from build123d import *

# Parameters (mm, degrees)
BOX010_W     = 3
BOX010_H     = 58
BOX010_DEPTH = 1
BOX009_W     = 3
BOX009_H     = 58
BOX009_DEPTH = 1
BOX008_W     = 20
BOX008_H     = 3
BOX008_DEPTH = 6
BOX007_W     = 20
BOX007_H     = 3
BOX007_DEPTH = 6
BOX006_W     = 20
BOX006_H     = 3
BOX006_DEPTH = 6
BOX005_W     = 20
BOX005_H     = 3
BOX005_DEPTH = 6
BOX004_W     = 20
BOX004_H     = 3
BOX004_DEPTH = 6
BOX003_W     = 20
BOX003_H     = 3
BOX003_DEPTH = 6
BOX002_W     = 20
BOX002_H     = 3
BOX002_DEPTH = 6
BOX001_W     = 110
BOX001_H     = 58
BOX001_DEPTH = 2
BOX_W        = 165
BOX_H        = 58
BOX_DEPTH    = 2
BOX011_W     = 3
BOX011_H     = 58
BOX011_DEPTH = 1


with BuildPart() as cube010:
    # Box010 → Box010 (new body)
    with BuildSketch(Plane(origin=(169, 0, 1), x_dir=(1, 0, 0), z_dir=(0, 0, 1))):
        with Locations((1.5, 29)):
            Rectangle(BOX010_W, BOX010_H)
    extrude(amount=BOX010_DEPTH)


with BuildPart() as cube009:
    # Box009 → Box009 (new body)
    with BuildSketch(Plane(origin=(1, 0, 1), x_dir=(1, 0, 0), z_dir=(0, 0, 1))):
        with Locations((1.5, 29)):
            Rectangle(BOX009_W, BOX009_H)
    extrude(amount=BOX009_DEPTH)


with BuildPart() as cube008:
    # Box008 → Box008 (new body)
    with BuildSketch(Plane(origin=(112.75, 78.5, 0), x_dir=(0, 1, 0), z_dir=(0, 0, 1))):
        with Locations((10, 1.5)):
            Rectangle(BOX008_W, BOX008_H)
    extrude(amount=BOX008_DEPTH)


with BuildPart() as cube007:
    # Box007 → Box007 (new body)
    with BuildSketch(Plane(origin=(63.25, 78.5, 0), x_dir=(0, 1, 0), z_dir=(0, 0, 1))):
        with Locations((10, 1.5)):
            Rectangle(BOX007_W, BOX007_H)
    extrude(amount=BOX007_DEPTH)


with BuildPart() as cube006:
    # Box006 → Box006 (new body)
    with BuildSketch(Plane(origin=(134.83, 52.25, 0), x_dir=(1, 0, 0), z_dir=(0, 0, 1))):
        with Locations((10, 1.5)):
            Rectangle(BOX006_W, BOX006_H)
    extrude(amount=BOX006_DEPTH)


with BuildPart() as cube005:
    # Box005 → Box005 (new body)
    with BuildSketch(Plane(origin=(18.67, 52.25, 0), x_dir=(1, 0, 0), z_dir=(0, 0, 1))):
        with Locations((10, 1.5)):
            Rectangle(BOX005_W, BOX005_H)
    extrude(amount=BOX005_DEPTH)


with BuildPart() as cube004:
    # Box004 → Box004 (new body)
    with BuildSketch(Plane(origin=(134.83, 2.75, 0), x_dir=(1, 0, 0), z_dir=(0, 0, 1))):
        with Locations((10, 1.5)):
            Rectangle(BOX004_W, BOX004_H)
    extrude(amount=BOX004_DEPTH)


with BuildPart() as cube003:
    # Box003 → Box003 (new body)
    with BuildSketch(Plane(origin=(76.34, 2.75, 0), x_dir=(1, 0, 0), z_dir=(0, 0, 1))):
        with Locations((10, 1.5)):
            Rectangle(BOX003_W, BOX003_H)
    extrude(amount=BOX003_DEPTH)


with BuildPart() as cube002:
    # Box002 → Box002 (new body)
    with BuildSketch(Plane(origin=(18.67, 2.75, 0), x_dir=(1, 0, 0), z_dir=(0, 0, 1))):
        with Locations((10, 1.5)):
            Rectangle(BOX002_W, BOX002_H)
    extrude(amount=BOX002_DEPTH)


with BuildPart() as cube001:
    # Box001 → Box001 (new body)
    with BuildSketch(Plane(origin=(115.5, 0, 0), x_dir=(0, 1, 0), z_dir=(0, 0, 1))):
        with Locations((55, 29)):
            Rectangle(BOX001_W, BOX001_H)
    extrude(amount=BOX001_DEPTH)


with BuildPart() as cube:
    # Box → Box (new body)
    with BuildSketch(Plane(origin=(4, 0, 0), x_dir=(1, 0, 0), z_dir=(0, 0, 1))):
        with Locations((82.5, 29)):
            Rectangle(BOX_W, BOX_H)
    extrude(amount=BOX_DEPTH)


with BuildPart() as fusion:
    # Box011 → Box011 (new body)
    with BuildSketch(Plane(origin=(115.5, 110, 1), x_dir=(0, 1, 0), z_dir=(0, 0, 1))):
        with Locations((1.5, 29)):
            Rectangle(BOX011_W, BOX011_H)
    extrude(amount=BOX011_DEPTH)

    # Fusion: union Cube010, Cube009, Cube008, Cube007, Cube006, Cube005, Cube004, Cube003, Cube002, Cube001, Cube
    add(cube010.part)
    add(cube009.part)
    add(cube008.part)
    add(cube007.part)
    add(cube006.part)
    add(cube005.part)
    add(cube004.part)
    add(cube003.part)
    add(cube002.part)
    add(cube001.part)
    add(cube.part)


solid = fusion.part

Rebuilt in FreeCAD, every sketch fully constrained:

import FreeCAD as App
import Part
import Sketcher

V = App.Vector


def add_polygon(sketch, points):
    """Adds a closed chain of lines whose ends are joined by coincident constraints."""
    first, n = sketch.GeometryCount, len(points)
    for a, b in zip(points, points[1:] + points[:1]):
        sketch.addGeometry(Part.LineSegment(App.Vector(*a, 0), App.Vector(*b, 0)), False)
    for i in range(n):
        sketch.addConstraint(Sketcher.Constraint("Coincident", first + i, 2, first + (i + 1) % n, 1))

doc = App.newDocument("Part")
params = doc.addObject("Spreadsheet::Sheet", "Params")
for row, (alias, value) in enumerate([
    ("sketch1_width", "3 mm"),
    ("sketch1_height", "58 mm"),
    ("pad1_length", "1 mm"),
    ("sketch2_width", "3 mm"),
    ("sketch2_height", "58 mm"),
    ("pad2_length", "1 mm"),
    ("sketch3_width", "3 mm"),
    ("sketch3_height", "20 mm"),
    ("pad3_length", "6 mm"),
    ("sketch4_width", "3 mm"),
    ("sketch4_height", "20 mm"),
    ("pad4_length", "6 mm"),
    ("sketch5_width", "20 mm"),
    ("sketch5_height", "3 mm"),
    ("pad5_length", "6 mm"),
    ("sketch6_width", "20 mm"),
    ("sketch6_height", "3 mm"),
    ("pad6_length", "6 mm"),
    ("sketch7_width", "20 mm"),
    ("sketch7_height", "3 mm"),
    ("pad7_length", "6 mm"),
    ("sketch8_width", "20 mm"),
    ("sketch8_height", "3 mm"),
    ("pad8_length", "6 mm"),
    ("sketch9_width", "20 mm"),
    ("sketch9_height", "3 mm"),
    ("pad9_length", "6 mm"),
    ("sketch10_width", "58 mm"),
    ("sketch10_height", "110 mm"),
    ("pad10_length", "2 mm"),
    ("sketch11_width", "165 mm"),
    ("sketch11_height", "58 mm"),
    ("pad11_length", "2 mm"),
    ("sketch12_width", "58 mm"),
    ("sketch12_height", "3 mm"),
    ("pad12_length", "1 mm"),
], start=1):
    params.set(f"A{row}", alias)
    params.set(f"B{row}", "=" + value)
    params.setAlias(f"B{row}", alias)

body = doc.addObject("PartDesign::Body", "Body")

sketch1 = body.newObject("Sketcher::SketchObject", "Sketch")
sketch1.AttachmentSupport = (doc.getObject("XY_Plane"), [""])
sketch1.MapMode = "FlatFace"
sketch1.AttachmentOffset = App.Placement(V(0, 0, 1), App.Rotation())
add_polygon(sketch1, [(169, 58), (169, 0), (172, 0), (172, 58)])
sketch1.addConstraint(Sketcher.Constraint("Vertical", 0))
sketch1.addConstraint(Sketcher.Constraint("Horizontal", 1))
sketch1.addConstraint(Sketcher.Constraint("Vertical", 2))
sketch1.addConstraint(Sketcher.Constraint("Horizontal", 3))
sketch1.addConstraint(Sketcher.Constraint("PointOnObject", 0, 2, -1))
sketch1.addConstraint(Sketcher.Constraint("DistanceX", 1, 1, 1, 2, 3.0))
sketch1.addConstraint(Sketcher.Constraint("DistanceY", 0, 2, 0, 1, 58.0))
sketch1.addConstraint(Sketcher.Constraint("DistanceX", -1, 1, 0, 2, 169.0))
sketch1.setExpression("Constraints[9]", "Params.sketch1_width")
sketch1.setExpression("Constraints[10]", "Params.sketch1_height")
pad1 = body.newObject("PartDesign::Pad", "Pad")
pad1.Profile = sketch1
pad1.setExpression("Length", "Params.pad1_length")
body2 = doc.addObject("PartDesign::Body", "Body001")

sketch2 = body2.newObject("Sketcher::SketchObject", "Sketch001")
sketch2.AttachmentSupport = (doc.getObject("XY_Plane001"), [""])
sketch2.MapMode = "FlatFace"
sketch2.AttachmentOffset = App.Placement(V(0, 0, 1), App.Rotation())
add_polygon(sketch2, [(1, 58), (1, 0), (4, 0), (4, 58)])
sketch2.addConstraint(Sketcher.Constraint("Vertical", 0))
sketch2.addConstraint(Sketcher.Constraint("Horizontal", 1))
sketch2.addConstraint(Sketcher.Constraint("Vertical", 2))
sketch2.addConstraint(Sketcher.Constraint("Horizontal", 3))
sketch2.addConstraint(Sketcher.Constraint("PointOnObject", 0, 2, -1))
sketch2.addConstraint(Sketcher.Constraint("DistanceX", 1, 1, 1, 2, 3.0))
sketch2.addConstraint(Sketcher.Constraint("DistanceY", 0, 2, 0, 1, 58.0))
sketch2.addConstraint(Sketcher.Constraint("DistanceX", -1, 1, 0, 2, 1.0))
sketch2.setExpression("Constraints[9]", "Params.sketch2_width")
sketch2.setExpression("Constraints[10]", "Params.sketch2_height")
pad2 = body2.newObject("PartDesign::Pad", "Pad001")
pad2.Profile = sketch2
pad2.setExpression("Length", "Params.pad2_length")
body3 = doc.addObject("PartDesign::Body", "Body002")

sketch3 = body3.newObject("Sketcher::SketchObject", "Sketch002")
sketch3.AttachmentSupport = (doc.getObject("XY_Plane002"), [""])
sketch3.MapMode = "FlatFace"
add_polygon(sketch3, [(109.75, 78.5), (112.75, 78.5), (112.75, 98.5), (109.75, 98.5)])
sketch3.addConstraint(Sketcher.Constraint("Horizontal", 0))
sketch3.addConstraint(Sketcher.Constraint("Vertical", 1))
sketch3.addConstraint(Sketcher.Constraint("Horizontal", 2))
sketch3.addConstraint(Sketcher.Constraint("Vertical", 3))
sketch3.addConstraint(Sketcher.Constraint("DistanceX", 0, 1, 0, 2, 3.0))
sketch3.addConstraint(Sketcher.Constraint("DistanceY", 1, 1, 1, 2, 20.0))
sketch3.addConstraint(Sketcher.Constraint("DistanceY", -1, 1, 0, 2, 78.5))
sketch3.addConstraint(Sketcher.Constraint("DistanceX", -1, 1, 0, 2, 112.75))
sketch3.setExpression("Constraints[8]", "Params.sketch3_width")
sketch3.setExpression("Constraints[9]", "Params.sketch3_height")
pad3 = body3.newObject("PartDesign::Pad", "Pad002")
pad3.Profile = sketch3
pad3.setExpression("Length", "Params.pad3_length")
body4 = doc.addObject("PartDesign::Body", "Body003")

sketch4 = body4.newObject("Sketcher::SketchObject", "Sketch003")
sketch4.AttachmentSupport = (doc.getObject("XY_Plane003"), [""])
sketch4.MapMode = "FlatFace"
add_polygon(sketch4, [(60.25, 78.5), (63.25, 78.5), (63.25, 98.5), (60.25, 98.5)])
sketch4.addConstraint(Sketcher.Constraint("Horizontal", 0))
sketch4.addConstraint(Sketcher.Constraint("Vertical", 1))
sketch4.addConstraint(Sketcher.Constraint("Horizontal", 2))
sketch4.addConstraint(Sketcher.Constraint("Vertical", 3))
sketch4.addConstraint(Sketcher.Constraint("DistanceX", 0, 1, 0, 2, 3.0))
sketch4.addConstraint(Sketcher.Constraint("DistanceY", 1, 1, 1, 2, 20.0))
sketch4.addConstraint(Sketcher.Constraint("DistanceY", -1, 1, 0, 2, 78.5))
sketch4.addConstraint(Sketcher.Constraint("DistanceX", -1, 1, 0, 2, 63.25))
sketch4.setExpression("Constraints[8]", "Params.sketch4_width")
sketch4.setExpression("Constraints[9]", "Params.sketch4_height")
pad4 = body4.newObject("PartDesign::Pad", "Pad003")
pad4.Profile = sketch4
pad4.setExpression("Length", "Params.pad4_length")
body5 = doc.addObject("PartDesign::Body", "Body004")

sketch5 = body5.newObject("Sketcher::SketchObject", "Sketch004")
sketch5.AttachmentSupport = (doc.getObject("XY_Plane004"), [""])
sketch5.MapMode = "FlatFace"
add_polygon(sketch5, [(134.83, 55.25), (134.83, 52.25), (154.83, 52.25), (154.83, 55.25)])
sketch5.addConstraint(Sketcher.Constraint("Vertical", 0))
sketch5.addConstraint(Sketcher.Constraint("Horizontal", 1))
sketch5.addConstraint(Sketcher.Constraint("Vertical", 2))
sketch5.addConstraint(Sketcher.Constraint("Horizontal", 3))
sketch5.addConstraint(Sketcher.Constraint("DistanceX", 1, 1, 1, 2, 20.0))
sketch5.addConstraint(Sketcher.Constraint("DistanceY", 0, 2, 0, 1, 3.0))
sketch5.addConstraint(Sketcher.Constraint("DistanceX", -1, 1, 0, 2, 134.83))
sketch5.addConstraint(Sketcher.Constraint("DistanceY", -1, 1, 0, 2, 52.25))
sketch5.setExpression("Constraints[8]", "Params.sketch5_width")
sketch5.setExpression("Constraints[9]", "Params.sketch5_height")
pad5 = body5.newObject("PartDesign::Pad", "Pad004")
pad5.Profile = sketch5
pad5.setExpression("Length", "Params.pad5_length")
body6 = doc.addObject("PartDesign::Body", "Body005")

sketch6 = body6.newObject("Sketcher::SketchObject", "Sketch005")
sketch6.AttachmentSupport = (doc.getObject("XY_Plane005"), [""])
sketch6.MapMode = "FlatFace"
add_polygon(sketch6, [(18.67, 55.25), (18.67, 52.25), (38.67, 52.25), (38.67, 55.25)])
sketch6.addConstraint(Sketcher.Constraint("Vertical", 0))
sketch6.addConstraint(Sketcher.Constraint("Horizontal", 1))
sketch6.addConstraint(Sketcher.Constraint("Vertical", 2))
sketch6.addConstraint(Sketcher.Constraint("Horizontal", 3))
sketch6.addConstraint(Sketcher.Constraint("DistanceX", 1, 1, 1, 2, 20.0))
sketch6.addConstraint(Sketcher.Constraint("DistanceY", 0, 2, 0, 1, 3.0))
sketch6.addConstraint(Sketcher.Constraint("DistanceX", -1, 1, 0, 2, 18.67))
sketch6.addConstraint(Sketcher.Constraint("DistanceY", -1, 1, 0, 2, 52.25))
sketch6.setExpression("Constraints[8]", "Params.sketch6_width")
sketch6.setExpression("Constraints[9]", "Params.sketch6_height")
pad6 = body6.newObject("PartDesign::Pad", "Pad005")
pad6.Profile = sketch6
pad6.setExpression("Length", "Params.pad6_length")
body7 = doc.addObject("PartDesign::Body", "Body006")

sketch7 = body7.newObject("Sketcher::SketchObject", "Sketch006")
sketch7.AttachmentSupport = (doc.getObject("XY_Plane006"), [""])
sketch7.MapMode = "FlatFace"
add_polygon(sketch7, [(134.83, 5.75), (134.83, 2.75), (154.83, 2.75), (154.83, 5.75)])
sketch7.addConstraint(Sketcher.Constraint("Vertical", 0))
sketch7.addConstraint(Sketcher.Constraint("Horizontal", 1))
sketch7.addConstraint(Sketcher.Constraint("Vertical", 2))
sketch7.addConstraint(Sketcher.Constraint("Horizontal", 3))
sketch7.addConstraint(Sketcher.Constraint("DistanceX", 1, 1, 1, 2, 20.0))
sketch7.addConstraint(Sketcher.Constraint("DistanceY", 0, 2, 0, 1, 3.0))
sketch7.addConstraint(Sketcher.Constraint("DistanceX", -1, 1, 0, 2, 134.83))
sketch7.addConstraint(Sketcher.Constraint("DistanceY", -1, 1, 0, 2, 2.75))
sketch7.setExpression("Constraints[8]", "Params.sketch7_width")
sketch7.setExpression("Constraints[9]", "Params.sketch7_height")
pad7 = body7.newObject("PartDesign::Pad", "Pad006")
pad7.Profile = sketch7
pad7.setExpression("Length", "Params.pad7_length")
body8 = doc.addObject("PartDesign::Body", "Body007")

sketch8 = body8.newObject("Sketcher::SketchObject", "Sketch007")
sketch8.AttachmentSupport = (doc.getObject("XY_Plane007"), [""])
sketch8.MapMode = "FlatFace"
add_polygon(sketch8, [(76.34, 5.75), (76.34, 2.75), (96.34, 2.75), (96.34, 5.75)])
sketch8.addConstraint(Sketcher.Constraint("Vertical", 0))
sketch8.addConstraint(Sketcher.Constraint("Horizontal", 1))
sketch8.addConstraint(Sketcher.Constraint("Vertical", 2))
sketch8.addConstraint(Sketcher.Constraint("Horizontal", 3))
sketch8.addConstraint(Sketcher.Constraint("DistanceX", 1, 1, 1, 2, 20.0))
sketch8.addConstraint(Sketcher.Constraint("DistanceY", 0, 2, 0, 1, 3.0))
sketch8.addConstraint(Sketcher.Constraint("DistanceX", -1, 1, 0, 2, 76.34))
sketch8.addConstraint(Sketcher.Constraint("DistanceY", -1, 1, 0, 2, 2.75))
sketch8.setExpression("Constraints[8]", "Params.sketch8_width")
sketch8.setExpression("Constraints[9]", "Params.sketch8_height")
pad8 = body8.newObject("PartDesign::Pad", "Pad007")
pad8.Profile = sketch8
pad8.setExpression("Length", "Params.pad8_length")
body9 = doc.addObject("PartDesign::Body", "Body008")

sketch9 = body9.newObject("Sketcher::SketchObject", "Sketch008")
sketch9.AttachmentSupport = (doc.getObject("XY_Plane008"), [""])
sketch9.MapMode = "FlatFace"
add_polygon(sketch9, [(18.67, 5.75), (18.67, 2.75), (38.67, 2.75), (38.67, 5.75)])
sketch9.addConstraint(Sketcher.Constraint("Vertical", 0))
sketch9.addConstraint(Sketcher.Constraint("Horizontal", 1))
sketch9.addConstraint(Sketcher.Constraint("Vertical", 2))
sketch9.addConstraint(Sketcher.Constraint("Horizontal", 3))
sketch9.addConstraint(Sketcher.Constraint("DistanceX", 1, 1, 1, 2, 20.0))
sketch9.addConstraint(Sketcher.Constraint("DistanceY", 0, 2, 0, 1, 3.0))
sketch9.addConstraint(Sketcher.Constraint("DistanceX", -1, 1, 0, 2, 18.67))
sketch9.addConstraint(Sketcher.Constraint("DistanceY", -1, 1, 0, 2, 2.75))
sketch9.setExpression("Constraints[8]", "Params.sketch9_width")
sketch9.setExpression("Constraints[9]", "Params.sketch9_height")
pad9 = body9.newObject("PartDesign::Pad", "Pad008")
pad9.Profile = sketch9
pad9.setExpression("Length", "Params.pad9_length")
body10 = doc.addObject("PartDesign::Body", "Body009")

sketch10 = body10.newObject("Sketcher::SketchObject", "Sketch009")
sketch10.AttachmentSupport = (doc.getObject("XY_Plane009"), [""])
sketch10.MapMode = "FlatFace"
add_polygon(sketch10, [(57.5, 0), (115.5, 0), (115.5, 110), (57.5, 110)])
sketch10.addConstraint(Sketcher.Constraint("Horizontal", 0))
sketch10.addConstraint(Sketcher.Constraint("Vertical", 1))
sketch10.addConstraint(Sketcher.Constraint("Horizontal", 2))
sketch10.addConstraint(Sketcher.Constraint("Vertical", 3))
sketch10.addConstraint(Sketcher.Constraint("PointOnObject", 0, 2, -1))
sketch10.addConstraint(Sketcher.Constraint("DistanceX", 0, 1, 0, 2, 58.0))
sketch10.addConstraint(Sketcher.Constraint("DistanceY", 1, 1, 1, 2, 110.0))
sketch10.addConstraint(Sketcher.Constraint("DistanceX", -1, 1, 0, 2, 115.5))
sketch10.setExpression("Constraints[9]", "Params.sketch10_width")
sketch10.setExpression("Constraints[10]", "Params.sketch10_height")
pad10 = body10.newObject("PartDesign::Pad", "Pad009")
pad10.Profile = sketch10
pad10.setExpression("Length", "Params.pad10_length")
body11 = doc.addObject("PartDesign::Body", "Body010")

sketch11 = body11.newObject("Sketcher::SketchObject", "Sketch010")
sketch11.AttachmentSupport = (doc.getObject("XY_Plane010"), [""])
sketch11.MapMode = "FlatFace"
add_polygon(sketch11, [(4, 58), (4, 0), (169, 0), (169, 58)])
sketch11.addConstraint(Sketcher.Constraint("Vertical", 0))
sketch11.addConstraint(Sketcher.Constraint("Horizontal", 1))
sketch11.addConstraint(Sketcher.Constraint("Vertical", 2))
sketch11.addConstraint(Sketcher.Constraint("Horizontal", 3))
sketch11.addConstraint(Sketcher.Constraint("PointOnObject", 0, 2, -1))
sketch11.addConstraint(Sketcher.Constraint("DistanceX", 1, 1, 1, 2, 165.0))
sketch11.addConstraint(Sketcher.Constraint("DistanceY", 0, 2, 0, 1, 58.0))
sketch11.addConstraint(Sketcher.Constraint("DistanceX", -1, 1, 0, 2, 4.0))
sketch11.setExpression("Constraints[9]", "Params.sketch11_width")
sketch11.setExpression("Constraints[10]", "Params.sketch11_height")
pad11 = body11.newObject("PartDesign::Pad", "Pad010")
pad11.Profile = sketch11
pad11.setExpression("Length", "Params.pad11_length")
body12 = doc.addObject("PartDesign::Body", "Body011")
body12.AllowCompound = True

sketch12 = body12.newObject("Sketcher::SketchObject", "Sketch011")
sketch12.AttachmentSupport = (doc.getObject("XY_Plane011"), [""])
sketch12.MapMode = "FlatFace"
sketch12.AttachmentOffset = App.Placement(V(0, 0, 1), App.Rotation())
add_polygon(sketch12, [(57.5, 110), (115.5, 110), (115.5, 113), (57.5, 113)])
sketch12.addConstraint(Sketcher.Constraint("Horizontal", 0))
sketch12.addConstraint(Sketcher.Constraint("Vertical", 1))
sketch12.addConstraint(Sketcher.Constraint("Horizontal", 2))
sketch12.addConstraint(Sketcher.Constraint("Vertical", 3))
sketch12.addConstraint(Sketcher.Constraint("DistanceX", 0, 1, 0, 2, 58.0))
sketch12.addConstraint(Sketcher.Constraint("DistanceY", 1, 1, 1, 2, 3.0))
sketch12.addConstraint(Sketcher.Constraint("DistanceY", -1, 1, 0, 2, 110.0))
sketch12.addConstraint(Sketcher.Constraint("DistanceX", -1, 1, 0, 2, 115.5))
sketch12.setExpression("Constraints[8]", "Params.sketch12_width")
sketch12.setExpression("Constraints[9]", "Params.sketch12_height")
pad12 = body12.newObject("PartDesign::Pad", "Pad011")
pad12.Profile = sketch12
pad12.setExpression("Length", "Params.pad12_length")
doc.recompute()

boolean = body12.newObject("PartDesign::Boolean", "Boolean")
boolean.Type = "Fuse"
boolean.addObjects([body])
doc.recompute()

boolean2 = body12.newObject("PartDesign::Boolean", "Boolean001")
boolean2.Type = "Fuse"
boolean2.addObjects([body2])
doc.recompute()

boolean3 = body12.newObject("PartDesign::Boolean", "Boolean002")
boolean3.Type = "Fuse"
boolean3.addObjects([body3])
doc.recompute()

boolean4 = body12.newObject("PartDesign::Boolean", "Boolean003")
boolean4.Type = "Fuse"
boolean4.addObjects([body4])
doc.recompute()

boolean5 = body12.newObject("PartDesign::Boolean", "Boolean004")
boolean5.Type = "Fuse"
boolean5.addObjects([body5])
doc.recompute()

boolean6 = body12.newObject("PartDesign::Boolean", "Boolean005")
boolean6.Type = "Fuse"
boolean6.addObjects([body6])
doc.recompute()

boolean7 = body12.newObject("PartDesign::Boolean", "Boolean006")
boolean7.Type = "Fuse"
boolean7.addObjects([body7])
doc.recompute()

boolean8 = body12.newObject("PartDesign::Boolean", "Boolean007")
boolean8.Type = "Fuse"
boolean8.addObjects([body8])
doc.recompute()

boolean9 = body12.newObject("PartDesign::Boolean", "Boolean008")
boolean9.Type = "Fuse"
boolean9.addObjects([body9])
doc.recompute()

boolean10 = body12.newObject("PartDesign::Boolean", "Boolean009")
boolean10.Type = "Fuse"
boolean10.addObjects([body10])
doc.recompute()

boolean11 = body12.newObject("PartDesign::Boolean", "Boolean010")
boolean11.Type = "Fuse"
boolean11.addObjects([body11])

doc.recompute()
